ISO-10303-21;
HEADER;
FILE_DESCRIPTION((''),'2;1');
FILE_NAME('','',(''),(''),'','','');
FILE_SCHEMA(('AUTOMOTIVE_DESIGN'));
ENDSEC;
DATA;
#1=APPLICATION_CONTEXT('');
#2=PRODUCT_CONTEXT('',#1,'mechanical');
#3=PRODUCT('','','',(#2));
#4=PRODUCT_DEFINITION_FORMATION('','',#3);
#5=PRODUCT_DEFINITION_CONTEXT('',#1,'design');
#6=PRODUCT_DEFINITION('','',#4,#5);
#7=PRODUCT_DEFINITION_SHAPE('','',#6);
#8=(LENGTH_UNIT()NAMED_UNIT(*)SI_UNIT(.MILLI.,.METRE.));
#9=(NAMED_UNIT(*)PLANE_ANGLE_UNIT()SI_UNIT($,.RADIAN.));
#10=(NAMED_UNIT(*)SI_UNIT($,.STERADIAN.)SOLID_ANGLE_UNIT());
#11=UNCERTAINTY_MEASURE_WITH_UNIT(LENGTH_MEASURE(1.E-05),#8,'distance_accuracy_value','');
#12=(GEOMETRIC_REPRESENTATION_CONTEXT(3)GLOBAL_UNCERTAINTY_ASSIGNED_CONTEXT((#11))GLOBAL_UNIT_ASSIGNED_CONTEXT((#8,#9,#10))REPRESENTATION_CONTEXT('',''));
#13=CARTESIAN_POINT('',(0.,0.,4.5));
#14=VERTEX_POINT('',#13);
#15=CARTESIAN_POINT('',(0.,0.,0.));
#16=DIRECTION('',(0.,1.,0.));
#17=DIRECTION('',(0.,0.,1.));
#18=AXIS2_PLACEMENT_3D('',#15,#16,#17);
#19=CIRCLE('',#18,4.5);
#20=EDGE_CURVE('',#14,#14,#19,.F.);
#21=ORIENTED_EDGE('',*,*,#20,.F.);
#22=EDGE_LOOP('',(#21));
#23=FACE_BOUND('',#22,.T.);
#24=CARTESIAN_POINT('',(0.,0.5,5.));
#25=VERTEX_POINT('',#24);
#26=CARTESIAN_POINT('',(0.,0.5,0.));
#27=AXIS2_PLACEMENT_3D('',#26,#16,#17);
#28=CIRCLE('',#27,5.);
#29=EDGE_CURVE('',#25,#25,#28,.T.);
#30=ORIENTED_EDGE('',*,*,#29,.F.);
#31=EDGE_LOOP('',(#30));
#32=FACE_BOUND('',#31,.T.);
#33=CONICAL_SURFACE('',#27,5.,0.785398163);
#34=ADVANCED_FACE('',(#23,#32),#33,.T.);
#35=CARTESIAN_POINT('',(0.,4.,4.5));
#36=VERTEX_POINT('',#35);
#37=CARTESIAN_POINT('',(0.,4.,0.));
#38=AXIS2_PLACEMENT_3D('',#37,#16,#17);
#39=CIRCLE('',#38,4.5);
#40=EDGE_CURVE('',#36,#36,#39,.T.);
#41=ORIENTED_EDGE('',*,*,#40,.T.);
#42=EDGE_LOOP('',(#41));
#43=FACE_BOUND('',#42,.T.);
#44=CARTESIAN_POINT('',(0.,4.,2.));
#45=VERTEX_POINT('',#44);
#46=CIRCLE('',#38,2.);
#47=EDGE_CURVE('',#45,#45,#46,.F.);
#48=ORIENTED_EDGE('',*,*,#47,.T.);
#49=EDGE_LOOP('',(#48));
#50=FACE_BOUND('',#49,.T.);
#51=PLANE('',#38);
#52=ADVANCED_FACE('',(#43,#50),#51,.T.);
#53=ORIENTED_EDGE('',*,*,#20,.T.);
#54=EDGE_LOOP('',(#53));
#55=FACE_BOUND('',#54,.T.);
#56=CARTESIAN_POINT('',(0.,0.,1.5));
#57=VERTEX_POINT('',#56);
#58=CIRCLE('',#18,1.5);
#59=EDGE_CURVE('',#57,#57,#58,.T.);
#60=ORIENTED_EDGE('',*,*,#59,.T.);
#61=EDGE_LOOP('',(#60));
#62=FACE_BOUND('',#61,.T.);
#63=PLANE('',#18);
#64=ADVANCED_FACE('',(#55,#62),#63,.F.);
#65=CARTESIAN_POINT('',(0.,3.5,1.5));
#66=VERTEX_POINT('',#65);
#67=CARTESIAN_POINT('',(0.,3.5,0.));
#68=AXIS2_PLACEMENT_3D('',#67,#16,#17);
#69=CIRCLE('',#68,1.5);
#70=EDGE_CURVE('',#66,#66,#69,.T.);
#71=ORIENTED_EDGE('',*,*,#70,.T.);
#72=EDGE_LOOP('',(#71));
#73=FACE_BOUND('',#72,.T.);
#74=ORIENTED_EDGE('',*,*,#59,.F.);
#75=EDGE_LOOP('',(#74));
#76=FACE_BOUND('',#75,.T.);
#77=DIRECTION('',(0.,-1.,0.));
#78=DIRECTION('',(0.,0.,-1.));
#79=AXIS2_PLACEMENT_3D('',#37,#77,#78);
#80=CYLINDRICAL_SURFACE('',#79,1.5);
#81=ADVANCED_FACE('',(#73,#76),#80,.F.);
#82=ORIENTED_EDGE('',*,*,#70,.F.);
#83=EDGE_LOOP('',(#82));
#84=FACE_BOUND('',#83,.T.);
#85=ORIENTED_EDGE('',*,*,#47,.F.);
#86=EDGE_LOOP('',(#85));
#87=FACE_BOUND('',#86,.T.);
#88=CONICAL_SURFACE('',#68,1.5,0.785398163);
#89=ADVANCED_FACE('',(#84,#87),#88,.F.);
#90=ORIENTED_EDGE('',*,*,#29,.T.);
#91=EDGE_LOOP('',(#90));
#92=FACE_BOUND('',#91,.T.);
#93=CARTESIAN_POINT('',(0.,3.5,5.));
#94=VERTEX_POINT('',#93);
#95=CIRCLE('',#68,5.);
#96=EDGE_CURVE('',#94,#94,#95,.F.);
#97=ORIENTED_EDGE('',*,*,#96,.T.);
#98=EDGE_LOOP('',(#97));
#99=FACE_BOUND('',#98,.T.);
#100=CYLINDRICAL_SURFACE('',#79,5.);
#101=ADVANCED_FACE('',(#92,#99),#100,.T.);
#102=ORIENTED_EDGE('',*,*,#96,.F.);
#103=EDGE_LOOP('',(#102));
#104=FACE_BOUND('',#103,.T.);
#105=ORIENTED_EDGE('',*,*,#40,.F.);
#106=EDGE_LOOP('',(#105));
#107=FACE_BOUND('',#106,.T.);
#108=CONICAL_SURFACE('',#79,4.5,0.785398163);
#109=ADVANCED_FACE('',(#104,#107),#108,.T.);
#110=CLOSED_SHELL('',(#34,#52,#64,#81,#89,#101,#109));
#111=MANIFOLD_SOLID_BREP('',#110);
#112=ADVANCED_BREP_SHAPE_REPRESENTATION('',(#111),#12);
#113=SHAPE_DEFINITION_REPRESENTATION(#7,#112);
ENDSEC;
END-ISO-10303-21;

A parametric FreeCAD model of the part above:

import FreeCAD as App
import Part
import Sketcher
from FreeCAD import Vector
Q = App.Units.Quantity


def edges_at(feature, points):
    """Names of the edges that pass closest to the given points."""
    edges = feature.Shape.Edges
    near = lambda p: min(range(len(edges)), key=lambda i: edges[i].distToShape(Part.Vertex(*p))[0])
    return sorted({f"Edge{near(p) + 1}" for p in points})

doc = App.newDocument("Part")
body = doc.addObject("PartDesign::Body", "Body")

# Sketch on XZ plane
sketch1 = body.newObject("Sketcher::SketchObject", "Sketch")
sketch1.AttachmentSupport = (doc.getObject("XZ_Plane"), [""])
sketch1.MapMode = "FlatFace"
sketch1.addGeometry([
    Part.Circle(Vector(0, 0, 0), Vector(0, 0, 1), 5),
    Part.Circle(Vector(0, 0, 0), Vector(0, 0, 1), 1.5),
], False)
sketch1.addConstraint([
    Sketcher.Constraint("Coincident", 0, 3, -1, 1),
    Sketcher.Constraint("Coincident", 1, 3, -1, 1),
    Sketcher.Constraint("Diameter", 0, Q("10 mm")),
    Sketcher.Constraint("Diameter", 1, Q("3 mm")),
])
pad1 = body.newObject("PartDesign::Pad", "Pad")
pad1.Profile = sketch1
pad1.Length = 4
pad1.Reversed = True
doc.recompute()

chamfer = body.newObject("PartDesign::Chamfer", "Chamfer")
chamfer.Base = (pad1, edges_at(pad1, [(0, 0, -5), (0, 4, -5), (0, 4, -1.5)]))
chamfer.Size = 0.5

doc.recompute()
